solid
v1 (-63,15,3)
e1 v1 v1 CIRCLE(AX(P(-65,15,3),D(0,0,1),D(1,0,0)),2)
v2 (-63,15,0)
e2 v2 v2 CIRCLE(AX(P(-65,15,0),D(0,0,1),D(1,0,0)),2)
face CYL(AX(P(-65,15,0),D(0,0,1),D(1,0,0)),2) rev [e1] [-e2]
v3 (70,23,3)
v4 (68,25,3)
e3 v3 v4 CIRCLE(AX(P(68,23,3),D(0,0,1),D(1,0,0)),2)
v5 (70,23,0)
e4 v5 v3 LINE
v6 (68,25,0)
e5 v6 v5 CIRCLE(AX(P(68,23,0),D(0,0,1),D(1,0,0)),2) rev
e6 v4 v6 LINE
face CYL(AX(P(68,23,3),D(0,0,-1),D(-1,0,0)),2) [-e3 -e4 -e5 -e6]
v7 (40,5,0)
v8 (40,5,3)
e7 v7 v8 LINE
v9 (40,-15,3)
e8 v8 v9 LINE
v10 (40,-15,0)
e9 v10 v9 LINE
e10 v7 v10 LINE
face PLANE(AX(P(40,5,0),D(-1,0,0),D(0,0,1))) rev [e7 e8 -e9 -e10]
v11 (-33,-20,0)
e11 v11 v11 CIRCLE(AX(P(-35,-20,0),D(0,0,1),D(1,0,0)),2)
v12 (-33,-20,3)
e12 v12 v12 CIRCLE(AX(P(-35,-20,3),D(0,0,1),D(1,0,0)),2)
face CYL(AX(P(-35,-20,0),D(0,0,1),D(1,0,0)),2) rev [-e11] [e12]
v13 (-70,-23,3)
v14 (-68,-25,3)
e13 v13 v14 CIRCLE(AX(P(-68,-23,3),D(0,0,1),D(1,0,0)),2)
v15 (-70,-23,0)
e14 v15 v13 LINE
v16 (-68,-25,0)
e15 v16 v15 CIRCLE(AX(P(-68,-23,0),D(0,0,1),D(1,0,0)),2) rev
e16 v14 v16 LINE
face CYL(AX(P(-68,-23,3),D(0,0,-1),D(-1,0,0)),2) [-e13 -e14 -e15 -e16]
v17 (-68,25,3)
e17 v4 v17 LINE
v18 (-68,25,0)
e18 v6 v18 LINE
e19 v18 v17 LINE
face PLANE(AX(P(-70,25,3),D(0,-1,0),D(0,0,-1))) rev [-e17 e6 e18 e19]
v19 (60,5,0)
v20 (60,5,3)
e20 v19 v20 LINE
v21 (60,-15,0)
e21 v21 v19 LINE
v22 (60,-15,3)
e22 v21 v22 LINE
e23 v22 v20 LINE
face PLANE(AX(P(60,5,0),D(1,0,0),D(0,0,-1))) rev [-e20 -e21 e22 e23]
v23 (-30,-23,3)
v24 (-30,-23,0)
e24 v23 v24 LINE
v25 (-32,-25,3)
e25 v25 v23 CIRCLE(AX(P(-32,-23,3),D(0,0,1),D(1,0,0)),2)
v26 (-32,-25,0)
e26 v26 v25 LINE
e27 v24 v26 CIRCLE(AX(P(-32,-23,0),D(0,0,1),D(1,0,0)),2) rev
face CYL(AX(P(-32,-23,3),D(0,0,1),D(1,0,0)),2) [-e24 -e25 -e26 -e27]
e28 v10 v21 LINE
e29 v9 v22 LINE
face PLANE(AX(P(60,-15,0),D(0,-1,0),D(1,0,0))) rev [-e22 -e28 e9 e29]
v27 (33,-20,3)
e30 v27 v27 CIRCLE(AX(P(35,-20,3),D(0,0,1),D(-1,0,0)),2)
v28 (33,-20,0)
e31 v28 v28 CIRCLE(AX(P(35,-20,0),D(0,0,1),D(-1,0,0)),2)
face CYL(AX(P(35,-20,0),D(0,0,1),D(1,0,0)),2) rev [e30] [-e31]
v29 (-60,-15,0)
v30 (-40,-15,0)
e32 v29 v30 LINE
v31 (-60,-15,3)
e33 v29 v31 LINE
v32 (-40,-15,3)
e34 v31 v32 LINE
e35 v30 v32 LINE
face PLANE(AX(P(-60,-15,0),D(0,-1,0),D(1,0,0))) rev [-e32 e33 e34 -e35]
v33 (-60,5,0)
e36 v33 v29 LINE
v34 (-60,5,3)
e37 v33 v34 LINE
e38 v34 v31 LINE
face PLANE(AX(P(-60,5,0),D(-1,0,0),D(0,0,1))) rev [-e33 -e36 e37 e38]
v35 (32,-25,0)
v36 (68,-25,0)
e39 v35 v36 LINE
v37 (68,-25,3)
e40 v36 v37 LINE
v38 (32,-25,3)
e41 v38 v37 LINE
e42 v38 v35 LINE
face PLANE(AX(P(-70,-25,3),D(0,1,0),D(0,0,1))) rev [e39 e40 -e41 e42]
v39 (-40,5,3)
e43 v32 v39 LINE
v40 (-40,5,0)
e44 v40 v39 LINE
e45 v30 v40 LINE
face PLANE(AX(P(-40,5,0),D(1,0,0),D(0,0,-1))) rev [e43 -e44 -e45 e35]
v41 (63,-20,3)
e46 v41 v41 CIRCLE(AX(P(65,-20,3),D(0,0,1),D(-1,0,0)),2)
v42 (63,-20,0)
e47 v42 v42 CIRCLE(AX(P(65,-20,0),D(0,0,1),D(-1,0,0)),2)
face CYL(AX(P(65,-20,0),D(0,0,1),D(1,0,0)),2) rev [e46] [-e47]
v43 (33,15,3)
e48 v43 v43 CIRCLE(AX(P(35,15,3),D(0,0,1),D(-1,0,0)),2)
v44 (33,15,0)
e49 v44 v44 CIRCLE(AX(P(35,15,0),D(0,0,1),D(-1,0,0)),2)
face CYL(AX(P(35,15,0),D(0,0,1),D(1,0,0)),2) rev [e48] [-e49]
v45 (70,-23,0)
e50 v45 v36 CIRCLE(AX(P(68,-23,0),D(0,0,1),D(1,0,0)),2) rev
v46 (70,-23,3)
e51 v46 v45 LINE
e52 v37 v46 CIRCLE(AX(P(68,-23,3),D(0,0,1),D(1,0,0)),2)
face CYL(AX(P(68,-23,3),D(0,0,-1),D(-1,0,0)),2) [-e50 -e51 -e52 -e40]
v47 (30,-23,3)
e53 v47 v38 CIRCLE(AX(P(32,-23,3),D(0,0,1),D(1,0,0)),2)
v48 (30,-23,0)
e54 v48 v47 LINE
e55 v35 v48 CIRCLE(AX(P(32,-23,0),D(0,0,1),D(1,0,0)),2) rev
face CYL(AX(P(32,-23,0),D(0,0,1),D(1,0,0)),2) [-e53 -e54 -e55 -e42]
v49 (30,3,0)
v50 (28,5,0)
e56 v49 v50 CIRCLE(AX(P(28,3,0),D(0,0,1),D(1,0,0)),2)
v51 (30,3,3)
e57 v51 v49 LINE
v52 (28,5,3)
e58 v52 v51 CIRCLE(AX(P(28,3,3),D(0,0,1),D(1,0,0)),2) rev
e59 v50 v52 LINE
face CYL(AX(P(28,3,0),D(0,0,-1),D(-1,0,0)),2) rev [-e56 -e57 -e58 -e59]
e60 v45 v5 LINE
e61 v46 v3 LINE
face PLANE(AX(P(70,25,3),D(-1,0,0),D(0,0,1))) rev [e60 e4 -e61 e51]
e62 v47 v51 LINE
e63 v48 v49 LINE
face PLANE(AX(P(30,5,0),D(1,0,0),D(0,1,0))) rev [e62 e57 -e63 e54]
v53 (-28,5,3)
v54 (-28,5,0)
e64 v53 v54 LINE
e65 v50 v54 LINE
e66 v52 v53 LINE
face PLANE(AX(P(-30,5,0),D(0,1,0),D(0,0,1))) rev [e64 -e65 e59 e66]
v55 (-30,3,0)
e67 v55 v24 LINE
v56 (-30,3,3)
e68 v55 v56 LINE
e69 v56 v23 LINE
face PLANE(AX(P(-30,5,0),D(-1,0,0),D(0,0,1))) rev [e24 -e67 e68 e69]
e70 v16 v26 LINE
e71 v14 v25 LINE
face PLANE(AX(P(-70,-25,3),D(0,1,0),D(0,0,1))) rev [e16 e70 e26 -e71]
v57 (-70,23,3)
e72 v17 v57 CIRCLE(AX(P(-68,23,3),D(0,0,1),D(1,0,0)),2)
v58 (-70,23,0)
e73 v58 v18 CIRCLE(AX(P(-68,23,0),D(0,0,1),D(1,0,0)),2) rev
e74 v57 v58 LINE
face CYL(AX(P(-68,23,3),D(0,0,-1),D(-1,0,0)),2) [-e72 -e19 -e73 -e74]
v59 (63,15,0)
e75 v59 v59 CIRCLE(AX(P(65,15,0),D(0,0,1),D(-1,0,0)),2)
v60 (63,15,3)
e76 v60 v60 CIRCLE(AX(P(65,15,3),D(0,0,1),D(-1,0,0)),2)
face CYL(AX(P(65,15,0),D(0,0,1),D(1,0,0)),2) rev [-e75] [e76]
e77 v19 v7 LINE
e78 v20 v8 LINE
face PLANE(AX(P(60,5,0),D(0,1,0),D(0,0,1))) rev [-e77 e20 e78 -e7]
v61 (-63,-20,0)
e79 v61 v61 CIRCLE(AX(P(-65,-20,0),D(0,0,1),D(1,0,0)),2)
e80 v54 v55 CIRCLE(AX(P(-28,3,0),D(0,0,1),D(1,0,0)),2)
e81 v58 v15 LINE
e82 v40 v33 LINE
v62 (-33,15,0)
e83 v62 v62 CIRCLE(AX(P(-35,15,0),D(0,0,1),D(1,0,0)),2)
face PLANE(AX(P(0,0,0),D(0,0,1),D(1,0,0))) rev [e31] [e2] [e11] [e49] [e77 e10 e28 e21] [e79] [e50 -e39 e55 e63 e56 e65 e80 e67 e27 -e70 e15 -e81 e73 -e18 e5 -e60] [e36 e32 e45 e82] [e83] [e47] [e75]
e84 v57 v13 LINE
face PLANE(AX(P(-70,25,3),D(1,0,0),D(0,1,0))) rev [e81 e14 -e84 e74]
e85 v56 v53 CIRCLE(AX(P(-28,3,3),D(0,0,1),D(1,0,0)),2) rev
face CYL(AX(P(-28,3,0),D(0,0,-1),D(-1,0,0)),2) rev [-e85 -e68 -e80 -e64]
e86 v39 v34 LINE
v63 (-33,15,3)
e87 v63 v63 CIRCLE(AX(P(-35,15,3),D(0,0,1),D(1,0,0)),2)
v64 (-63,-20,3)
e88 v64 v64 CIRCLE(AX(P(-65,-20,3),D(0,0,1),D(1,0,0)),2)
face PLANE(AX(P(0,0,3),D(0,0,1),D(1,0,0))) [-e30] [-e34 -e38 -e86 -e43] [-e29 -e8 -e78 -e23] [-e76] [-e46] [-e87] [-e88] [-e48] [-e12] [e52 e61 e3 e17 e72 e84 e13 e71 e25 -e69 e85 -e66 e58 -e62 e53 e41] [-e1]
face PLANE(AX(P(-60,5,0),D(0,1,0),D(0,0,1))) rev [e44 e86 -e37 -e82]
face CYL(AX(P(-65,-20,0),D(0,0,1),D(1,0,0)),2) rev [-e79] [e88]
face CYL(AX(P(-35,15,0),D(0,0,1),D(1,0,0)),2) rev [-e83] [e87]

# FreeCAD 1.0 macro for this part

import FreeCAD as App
import Part
import Sketcher


def edges_at(feature, points):
    """Names of the edges that pass closest to the given points."""
    edges = feature.Shape.Edges
    near = lambda p: min(range(len(edges)), key=lambda i: edges[i].distToShape(Part.Vertex(*p))[0])
    return sorted({f"Edge{near(p) + 1}" for p in points})


def add_polygon(sketch, points):
    """Adds a closed chain of lines whose ends are joined by coincident constraints."""
    first, n = sketch.GeometryCount, len(points)
    for a, b in zip(points, points[1:] + points[:1]):
        sketch.addGeometry(Part.LineSegment(App.Vector(*a, 0), App.Vector(*b, 0)), False)
    for i in range(n):
        sketch.addConstraint(Sketcher.Constraint("Coincident", first + i, 2, first + (i + 1) % n, 1))

doc = App.newDocument("Part")
body = doc.addObject("PartDesign::Body", "Body")

# Sketch on XY plane
sketch1 = body.newObject("Sketcher::SketchObject", "Sketch")
sketch1.AttachmentSupport = (doc.getObject("XY_Plane"), [""])
sketch1.MapMode = "FlatFace"
add_polygon(sketch1, [(-70, 25), (-70, -25), (70, -25), (70, 25)])  # lines 0-3
sketch1.addConstraint([
    Sketcher.Constraint("Vertical", 0),
    Sketcher.Constraint("Horizontal", 1),
    Sketcher.Constraint("Vertical", 2),
    Sketcher.Constraint("Horizontal", 3),
    Sketcher.Constraint("Symmetric", 0, 2, 2, 2, -1, 1),
    Sketcher.Constraint("DistanceX", 1, 1, 1, 2, 140.0),
    Sketcher.Constraint("DistanceY", 0, 2, 0, 1, 50.0),
])
pad1 = body.newObject("PartDesign::Pad", "Pad")
pad1.Profile = sketch1
pad1.Length = 3

# Sketch on XY plane
sketch2 = body.newObject("Sketcher::SketchObject", "Sketch001")
sketch2.AttachmentSupport = (doc.getObject("XY_Plane"), [""])
sketch2.MapMode = "FlatFace"
sketch2.AttachmentOffset = App.Placement(App.Vector(0, 0, 3), App.Rotation())
add_polygon(sketch2, [(-60, 5), (-60, -15), (-40, -15), (-40, 5)])  # lines 0-3
add_polygon(sketch2, [(40, 5), (40, -15), (60, -15), (60, 5)])  # lines 4-7
sketch2.addConstraint([
    Sketcher.Constraint("Vertical", 0),
    Sketcher.Constraint("Horizontal", 1),
    Sketcher.Constraint("Vertical", 2),
    Sketcher.Constraint("Horizontal", 3),
    Sketcher.Constraint("Vertical", 4),
    Sketcher.Constraint("Horizontal", 5),
    Sketcher.Constraint("Vertical", 6),
    Sketcher.Constraint("Horizontal", 7),
    Sketcher.Constraint("Symmetric", 1, 2, 4, 2, -2),
    Sketcher.Constraint("Symmetric", 3, 2, 6, 2, -2),
    Sketcher.Constraint("Equal", 7, 0),
    Sketcher.Constraint("DistanceX", 1, 1, 1, 2, 20.0),
    Sketcher.Constraint("DistanceX", 0, 2, -1, 1, 60.0),
    Sketcher.Constraint("DistanceY", 0, 2, -1, 1, 15.0),
])
pocket1 = body.newObject("PartDesign::Pocket", "Pocket")
pocket1.Profile = sketch2
pocket1.Length = 3

# Sketch on XY plane
sketch3 = body.newObject("Sketcher::SketchObject", "Sketch002")
sketch3.AttachmentSupport = (doc.getObject("XY_Plane"), [""])
sketch3.MapMode = "FlatFace"
sketch3.AttachmentOffset = App.Placement(App.Vector(0, 0, 3), App.Rotation())
add_polygon(sketch3, [(-30, 5), (-30, -25), (30, -25), (30, 5)])  # lines 0-3
sketch3.addConstraint([
    Sketcher.Constraint("Vertical", 0),
    Sketcher.Constraint("Horizontal", 1),
    Sketcher.Constraint("Vertical", 2),
    Sketcher.Constraint("Horizontal", 3),
    Sketcher.Constraint("DistanceX", 1, 1, 1, 2, 60.0),
    Sketcher.Constraint("DistanceY", 0, 2, 0, 1, 30.0),
    Sketcher.Constraint("DistanceX", 0, 2, -1, 1, 30.0),
    Sketcher.Constraint("DistanceY", 0, 2, -1, 1, 25.0),
])
pocket2 = body.newObject("PartDesign::Pocket", "Pocket001")
pocket2.Profile = sketch3
pocket2.Length = 3

# Sketch on XY plane
sketch4 = body.newObject("Sketcher::SketchObject", "Sketch003")
sketch4.AttachmentSupport = (doc.getObject("XY_Plane"), [""])
sketch4.MapMode = "FlatFace"
sketch4.AttachmentOffset = App.Placement(App.Vector(0, 0, 3), App.Rotation())
sketch4.addGeometry([
    Part.Circle(App.Vector(-65, -20, 0), App.Vector(0, 0, 1), 2),
    Part.Circle(App.Vector(-35, -20, 0), App.Vector(0, 0, 1), 2),
    Part.Circle(App.Vector(65, -20, 0), App.Vector(0, 0, 1), 2),
    Part.Circle(App.Vector(35, -20, 0), App.Vector(0, 0, 1), 2),
], False)
sketch4.addConstraint([
    Sketcher.Constraint("Equal", 0, 1),
    Sketcher.Constraint("Equal", 1, 2),
    Sketcher.Constraint("Equal", 2, 3),
    Sketcher.Constraint("Symmetric", 0, 3, 2, 3, -2),
    Sketcher.Constraint("Symmetric", 1, 3, 3, 3, -2),
    Sketcher.Constraint("Horizontal", 0, 3, 1, 3),
    Sketcher.Constraint("Diameter", 0, 4.0),
    Sketcher.Constraint("DistanceX", 0, 3, -1, 1, 65.0),
    Sketcher.Constraint("DistanceY", 0, 3, -1, 1, 20.0),
    Sketcher.Constraint("DistanceX", 1, 3, -1, 1, 35.0),
])
pocket3 = body.newObject("PartDesign::Pocket", "Pocket002")
pocket3.Profile = sketch4
pocket3.Length = 3

# Sketch on XY plane
sketch5 = body.newObject("Sketcher::SketchObject", "Sketch004")
sketch5.AttachmentSupport = (doc.getObject("XY_Plane"), [""])
sketch5.MapMode = "FlatFace"
sketch5.AttachmentOffset = App.Placement(App.Vector(0, 0, 3), App.Rotation())
sketch5.addGeometry([
    Part.Circle(App.Vector(-65, 15, 0), App.Vector(0, 0, 1), 2),
    Part.Circle(App.Vector(-35, 15, 0), App.Vector(0, 0, 1), 2),
    Part.Circle(App.Vector(35, 15, 0), App.Vector(0, 0, 1), 2),
    Part.Circle(App.Vector(65, 15, 0), App.Vector(0, 0, 1), 2),
], False)
sketch5.addConstraint([
    Sketcher.Constraint("Equal", 0, 1),
    Sketcher.Constraint("Equal", 1, 2),
    Sketcher.Constraint("Equal", 2, 3),
    Sketcher.Constraint("Symmetric", 1, 3, 2, 3, -2),
    Sketcher.Constraint("Symmetric", 0, 3, 3, 3, -2),
    Sketcher.Constraint("Horizontal", 0, 3, 1, 3),
    Sketcher.Constraint("Diameter", 0, 4.0),
    Sketcher.Constraint("DistanceX", 0, 3, -1, 1, 65.0),
    Sketcher.Constraint("DistanceY", -1, 1, 0, 3, 15.0),
    Sketcher.Constraint("DistanceX", 1, 3, -1, 1, 35.0),
])
pocket4 = body.newObject("PartDesign::Pocket", "Pocket003")
pocket4.Profile = sketch5
pocket4.Length = 3
doc.recompute()

fillet = body.newObject("PartDesign::Fillet", "Fillet")
fillet.Base = (pocket4, edges_at(pocket4, [
    (30, 5, 1.5),
    (30, -25, 1.5),
    (-30, -25, 1.5),
    (-30, 5, 1.5),
    (70, -25, 1.5),
    (-70, -25, 1.5),
    (-70, 25, 1.5),
    (70, 25, 1.5),
]))
fillet.Radius = 2

doc.recompute()
